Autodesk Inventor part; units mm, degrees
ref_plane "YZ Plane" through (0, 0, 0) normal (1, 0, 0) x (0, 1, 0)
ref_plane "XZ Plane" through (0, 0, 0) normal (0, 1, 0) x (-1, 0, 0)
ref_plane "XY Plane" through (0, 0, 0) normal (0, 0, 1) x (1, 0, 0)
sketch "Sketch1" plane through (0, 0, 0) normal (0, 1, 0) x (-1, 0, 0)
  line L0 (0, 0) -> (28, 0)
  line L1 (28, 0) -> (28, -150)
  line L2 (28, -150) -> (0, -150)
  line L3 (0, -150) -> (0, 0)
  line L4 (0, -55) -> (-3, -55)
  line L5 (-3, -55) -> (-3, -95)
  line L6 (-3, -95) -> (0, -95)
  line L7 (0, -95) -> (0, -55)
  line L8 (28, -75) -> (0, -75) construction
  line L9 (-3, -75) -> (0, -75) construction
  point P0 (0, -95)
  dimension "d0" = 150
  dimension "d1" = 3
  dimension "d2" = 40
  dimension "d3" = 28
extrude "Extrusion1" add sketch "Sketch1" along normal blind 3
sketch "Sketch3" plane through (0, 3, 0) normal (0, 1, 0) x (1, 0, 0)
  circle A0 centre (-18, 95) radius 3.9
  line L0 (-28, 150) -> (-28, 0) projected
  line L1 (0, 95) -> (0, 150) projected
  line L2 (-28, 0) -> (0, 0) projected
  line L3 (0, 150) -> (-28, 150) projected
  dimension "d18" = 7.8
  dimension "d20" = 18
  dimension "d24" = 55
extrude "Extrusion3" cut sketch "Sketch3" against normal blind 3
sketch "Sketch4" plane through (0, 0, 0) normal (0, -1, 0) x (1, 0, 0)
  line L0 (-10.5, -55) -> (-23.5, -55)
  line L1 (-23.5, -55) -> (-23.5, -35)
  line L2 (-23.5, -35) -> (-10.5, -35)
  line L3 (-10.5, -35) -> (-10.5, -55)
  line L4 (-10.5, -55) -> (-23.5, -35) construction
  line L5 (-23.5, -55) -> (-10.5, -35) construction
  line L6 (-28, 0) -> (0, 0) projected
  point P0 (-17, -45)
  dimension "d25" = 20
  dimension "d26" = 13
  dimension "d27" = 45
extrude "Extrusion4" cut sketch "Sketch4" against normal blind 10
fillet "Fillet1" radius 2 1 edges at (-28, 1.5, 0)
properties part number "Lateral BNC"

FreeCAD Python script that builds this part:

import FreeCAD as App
import Part
import Sketcher

V = App.Vector


def edges_at(feature, points):
    """Names of the edges that pass closest to the given points."""
    edges = feature.Shape.Edges
    near = lambda p: min(range(len(edges)), key=lambda i: edges[i].distToShape(Part.Vertex(*p))[0])
    return sorted({f"Edge{near(p) + 1}" for p in points})

doc = App.newDocument("Part")
params = doc.addObject("Spreadsheet::Sheet", "Params")
for row, (alias, value) in enumerate([
    ("sketch1_width", "28 mm"),
    ("sketch1_width2", "3 mm"),
    ("sketch1_height", "40 mm"),
    ("sketch1_height2", "150 mm"),
    ("pad1_length", "3 mm"),
    ("sketch2_diameter", "7.8 mm"),
    ("pocket1_length", "3 mm"),
    ("sketch3_width", "13 mm"),
    ("sketch3_height", "20 mm"),
    ("pocket2_length", "10 mm"),
    ("fillet_radius", "2 mm"),
], start=1):
    params.set(f"A{row}", alias)
    params.set(f"B{row}", "=" + value)
    params.setAlias(f"B{row}", alias)

body = doc.addObject("PartDesign::Body", "Body")

# Sketch on XZ plane
sketch1 = body.newObject("Sketcher::SketchObject", "Sketch")
sketch1.AttachmentSupport = (doc.getObject("XZ_Plane"), [""])
sketch1.MapMode = "FlatFace"
sketch1.addGeometry(Part.LineSegment(V(-28, 0, 0), V(0, 0, 0)), False)
sketch1.addGeometry(Part.LineSegment(V(0, 0, 0), V(0, -55, 0)), False)
sketch1.addGeometry(Part.LineSegment(V(0, -55, 0), V(3, -55, 0)), False)
sketch1.addGeometry(Part.LineSegment(V(3, -55, 0), V(3, -95, 0)), False)
sketch1.addGeometry(Part.LineSegment(V(3, -95, 0), V(0, -95, 0)), False)
sketch1.addGeometry(Part.LineSegment(V(0, -95, 0), V(0, -150, 0)), False)
sketch1.addGeometry(Part.LineSegment(V(0, -150, 0), V(-28, -150, 0)), False)
sketch1.addGeometry(Part.LineSegment(V(-28, -150, 0), V(-28, 0, 0)), False)
sketch1.addConstraint(Sketcher.Constraint("Coincident", 0, 2, 1, 1))
sketch1.addConstraint(Sketcher.Constraint("Coincident", 1, 2, 2, 1))
sketch1.addConstraint(Sketcher.Constraint("Coincident", 2, 2, 3, 1))
sketch1.addConstraint(Sketcher.Constraint("Coincident", 3, 2, 4, 1))
sketch1.addConstraint(Sketcher.Constraint("Coincident", 4, 2, 5, 1))
sketch1.addConstraint(Sketcher.Constraint("Coincident", 5, 2, 6, 1))
sketch1.addConstraint(Sketcher.Constraint("Coincident", 6, 2, 7, 1))
sketch1.addConstraint(Sketcher.Constraint("Coincident", 7, 2, 0, 1))
sketch1.addConstraint(Sketcher.Constraint("Horizontal", 0))
sketch1.addConstraint(Sketcher.Constraint("Vertical", 1))
sketch1.addConstraint(Sketcher.Constraint("Horizontal", 2))
sketch1.addConstraint(Sketcher.Constraint("Vertical", 3))
sketch1.addConstraint(Sketcher.Constraint("Horizontal", 4))
sketch1.addConstraint(Sketcher.Constraint("Vertical", 5))
sketch1.addConstraint(Sketcher.Constraint("Horizontal", 6))
sketch1.addConstraint(Sketcher.Constraint("Vertical", 7))
sketch1.addConstraint(Sketcher.Constraint("Coincident", 0, 2, -1, 1))
sketch1.addConstraint(Sketcher.Constraint("PointOnObject", 4, 2, -2))
sketch1.addConstraint(Sketcher.Constraint("Equal", 1, 5))
sketch1.addConstraint(Sketcher.Constraint("DistanceX", 0, 1, 0, 2, 28.0))
sketch1.addConstraint(Sketcher.Constraint("DistanceX", 2, 1, 2, 2, 3.0))
sketch1.addConstraint(Sketcher.Constraint("DistanceY", 3, 2, 3, 1, 40.0))
sketch1.addConstraint(Sketcher.Constraint("DistanceY", 7, 1, 7, 2, 150.0))
sketch1.setExpression("Constraints[19]", "Params.sketch1_width")
sketch1.setExpression("Constraints[20]", "Params.sketch1_width2")
sketch1.setExpression("Constraints[21]", "Params.sketch1_height")
sketch1.setExpression("Constraints[22]", "Params.sketch1_height2")
pad1 = body.newObject("PartDesign::Pad", "Pad")
pad1.Profile = sketch1
pad1.setExpression("Length", "Params.pad1_length")
pad1.Reversed = True

# Sketch on XZ plane
sketch2 = body.newObject("Sketcher::SketchObject", "Sketch001")
sketch2.AttachmentSupport = (doc.getObject("XZ_Plane"), [""])
sketch2.MapMode = "FlatFace"
sketch2.AttachmentOffset = App.Placement(V(0, 0, -3), App.Rotation())
sketch2.addGeometry(Part.Circle(V(-18, -95, 0), V(0, 0, 1), 3.9), False)
sketch2.addConstraint(Sketcher.Constraint("Diameter", 0, 7.8))
sketch2.addConstraint(Sketcher.Constraint("DistanceX", 0, 3, -1, 1, 18.0))
sketch2.addConstraint(Sketcher.Constraint("DistanceY", 0, 3, -1, 1, 95.0))
sketch2.setExpression("Constraints[0]", "Params.sketch2_diameter")
pocket1 = body.newObject("PartDesign::Pocket", "Pocket")
pocket1.Profile = sketch2
pocket1.setExpression("Length", "Params.pocket1_length")
pocket1.Reversed = True

# Sketch on XZ plane
sketch3 = body.newObject("Sketcher::SketchObject", "Sketch002")
sketch3.AttachmentSupport = (doc.getObject("XZ_Plane"), [""])
sketch3.MapMode = "FlatFace"
sketch3.addGeometry(Part.LineSegment(V(-23.5, -55, 0), V(-10.5, -55, 0)), False)
sketch3.addGeometry(Part.LineSegment(V(-10.5, -55, 0), V(-10.5, -35, 0)), False)
sketch3.addGeometry(Part.LineSegment(V(-10.5, -35, 0), V(-23.5, -35, 0)), False)
sketch3.addGeometry(Part.LineSegment(V(-23.5, -35, 0), V(-23.5, -55, 0)), False)
sketch3.addConstraint(Sketcher.Constraint("Coincident", 0, 2, 1, 1))
sketch3.addConstraint(Sketcher.Constraint("Coincident", 1, 2, 2, 1))
sketch3.addConstraint(Sketcher.Constraint("Coincident", 2, 2, 3, 1))
sketch3.addConstraint(Sketcher.Constraint("Coincident", 3, 2, 0, 1))
sketch3.addConstraint(Sketcher.Constraint("Horizontal", 0))
sketch3.addConstraint(Sketcher.Constraint("Vertical", 1))
sketch3.addConstraint(Sketcher.Constraint("Horizontal", 2))
sketch3.addConstraint(Sketcher.Constraint("Vertical", 3))
sketch3.addConstraint(Sketcher.Constraint("DistanceX", 0, 1, 0, 2, 13.0))
sketch3.addConstraint(Sketcher.Constraint("DistanceY", 1, 1, 1, 2, 20.0))
sketch3.addConstraint(Sketcher.Constraint("DistanceY", 0, 2, -1, 1, 55.0))
sketch3.addConstraint(Sketcher.Constraint("DistanceX", 0, 2, -1, 1, 10.5))
sketch3.setExpression("Constraints[8]", "Params.sketch3_width")
sketch3.setExpression("Constraints[9]", "Params.sketch3_height")
pocket2 = body.newObject("PartDesign::Pocket", "Pocket001")
pocket2.Profile = sketch3
pocket2.setExpression("Length", "Params.pocket2_length")
doc.recompute()

fillet = body.newObject("PartDesign::Fillet", "Fillet")
fillet.Base = (pocket2, edges_at(pocket2, [(-28, 1.5, 0)]))
fillet.setExpression("Radius", "Params.fillet_radius")

doc.recompute()
